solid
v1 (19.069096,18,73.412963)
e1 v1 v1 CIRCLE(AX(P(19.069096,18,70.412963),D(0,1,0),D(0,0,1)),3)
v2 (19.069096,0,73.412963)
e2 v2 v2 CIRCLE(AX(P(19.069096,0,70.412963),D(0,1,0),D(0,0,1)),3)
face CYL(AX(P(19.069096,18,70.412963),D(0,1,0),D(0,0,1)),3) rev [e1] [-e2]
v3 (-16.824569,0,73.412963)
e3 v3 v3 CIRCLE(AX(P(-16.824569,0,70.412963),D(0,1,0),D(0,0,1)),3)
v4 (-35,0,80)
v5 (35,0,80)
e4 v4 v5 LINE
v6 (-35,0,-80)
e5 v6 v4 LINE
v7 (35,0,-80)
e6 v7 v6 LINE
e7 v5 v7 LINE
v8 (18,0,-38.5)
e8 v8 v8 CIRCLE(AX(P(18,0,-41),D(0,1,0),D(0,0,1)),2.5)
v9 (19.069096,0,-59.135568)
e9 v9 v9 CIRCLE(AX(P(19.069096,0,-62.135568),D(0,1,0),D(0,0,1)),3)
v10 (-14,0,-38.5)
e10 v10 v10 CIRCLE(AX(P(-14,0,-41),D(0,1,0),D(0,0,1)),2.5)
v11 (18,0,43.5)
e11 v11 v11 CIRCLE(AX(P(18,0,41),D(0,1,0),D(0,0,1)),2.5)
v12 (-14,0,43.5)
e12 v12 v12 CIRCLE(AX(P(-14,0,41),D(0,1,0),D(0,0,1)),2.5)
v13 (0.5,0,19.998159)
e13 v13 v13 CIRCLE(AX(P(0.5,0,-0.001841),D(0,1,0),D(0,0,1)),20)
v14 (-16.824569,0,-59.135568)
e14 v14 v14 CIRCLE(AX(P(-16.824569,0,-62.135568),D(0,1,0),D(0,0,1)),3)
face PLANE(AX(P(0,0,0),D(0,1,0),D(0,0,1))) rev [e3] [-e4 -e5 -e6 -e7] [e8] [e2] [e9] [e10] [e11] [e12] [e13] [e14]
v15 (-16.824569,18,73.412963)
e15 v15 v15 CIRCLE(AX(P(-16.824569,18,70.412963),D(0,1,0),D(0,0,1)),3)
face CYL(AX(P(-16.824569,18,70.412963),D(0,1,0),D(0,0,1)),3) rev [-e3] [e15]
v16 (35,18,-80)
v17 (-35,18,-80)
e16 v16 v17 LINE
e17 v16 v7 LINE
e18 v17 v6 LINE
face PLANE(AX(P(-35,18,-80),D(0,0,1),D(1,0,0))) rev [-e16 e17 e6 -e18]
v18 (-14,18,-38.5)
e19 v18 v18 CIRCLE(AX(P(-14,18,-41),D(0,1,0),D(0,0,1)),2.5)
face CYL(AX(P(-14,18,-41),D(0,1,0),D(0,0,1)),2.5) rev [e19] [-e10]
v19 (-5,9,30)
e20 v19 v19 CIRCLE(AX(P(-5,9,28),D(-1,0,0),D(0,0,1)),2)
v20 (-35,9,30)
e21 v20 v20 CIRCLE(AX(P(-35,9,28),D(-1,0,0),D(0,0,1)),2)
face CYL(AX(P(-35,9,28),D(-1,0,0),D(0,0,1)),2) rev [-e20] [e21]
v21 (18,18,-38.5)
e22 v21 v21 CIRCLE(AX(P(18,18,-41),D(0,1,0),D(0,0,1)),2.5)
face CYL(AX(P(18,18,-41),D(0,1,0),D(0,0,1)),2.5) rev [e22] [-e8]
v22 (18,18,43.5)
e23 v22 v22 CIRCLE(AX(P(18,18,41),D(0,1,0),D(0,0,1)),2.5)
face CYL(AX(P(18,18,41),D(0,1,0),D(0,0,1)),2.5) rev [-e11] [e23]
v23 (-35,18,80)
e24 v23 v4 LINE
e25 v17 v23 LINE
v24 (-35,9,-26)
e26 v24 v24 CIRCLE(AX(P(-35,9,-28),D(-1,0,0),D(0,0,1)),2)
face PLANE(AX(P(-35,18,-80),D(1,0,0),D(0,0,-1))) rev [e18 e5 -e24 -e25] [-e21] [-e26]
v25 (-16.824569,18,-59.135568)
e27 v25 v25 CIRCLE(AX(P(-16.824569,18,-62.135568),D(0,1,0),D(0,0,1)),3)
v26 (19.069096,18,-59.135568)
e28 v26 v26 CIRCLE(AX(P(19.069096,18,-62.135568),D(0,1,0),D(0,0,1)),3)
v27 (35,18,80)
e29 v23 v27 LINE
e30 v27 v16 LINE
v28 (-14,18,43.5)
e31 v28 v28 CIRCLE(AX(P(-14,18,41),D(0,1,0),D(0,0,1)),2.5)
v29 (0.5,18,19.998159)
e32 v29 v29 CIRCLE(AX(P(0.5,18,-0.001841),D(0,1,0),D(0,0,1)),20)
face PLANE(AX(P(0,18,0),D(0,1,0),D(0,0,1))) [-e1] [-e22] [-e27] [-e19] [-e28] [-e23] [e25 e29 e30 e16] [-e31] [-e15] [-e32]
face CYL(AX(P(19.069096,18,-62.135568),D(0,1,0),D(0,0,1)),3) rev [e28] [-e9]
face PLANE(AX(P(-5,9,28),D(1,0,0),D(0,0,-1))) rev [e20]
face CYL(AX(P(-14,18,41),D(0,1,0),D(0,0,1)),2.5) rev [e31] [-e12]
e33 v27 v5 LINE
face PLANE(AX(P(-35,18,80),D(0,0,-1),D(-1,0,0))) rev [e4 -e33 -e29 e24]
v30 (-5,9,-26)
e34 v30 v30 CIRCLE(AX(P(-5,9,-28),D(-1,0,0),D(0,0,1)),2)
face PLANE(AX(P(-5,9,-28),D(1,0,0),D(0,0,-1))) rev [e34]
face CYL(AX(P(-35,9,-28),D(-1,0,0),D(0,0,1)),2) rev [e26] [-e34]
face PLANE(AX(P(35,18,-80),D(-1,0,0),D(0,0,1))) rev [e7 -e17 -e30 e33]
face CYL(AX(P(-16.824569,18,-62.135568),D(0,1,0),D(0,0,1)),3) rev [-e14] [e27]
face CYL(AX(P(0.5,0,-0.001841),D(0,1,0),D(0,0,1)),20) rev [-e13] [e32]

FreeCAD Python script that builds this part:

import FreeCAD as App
import Part
import Sketcher

V = App.Vector

doc = App.newDocument("Part")
body = doc.addObject("PartDesign::Body", "Body")

sketch1 = body.newObject("Sketcher::SketchObject", "Sketch")
sketch1.AttachmentSupport = (doc.getObject("XZ_Plane"), [""])
sketch1.MapMode = "FlatFace"
sketch1.addGeometry([
    Part.LineSegment(V(-35, -80, 0), V(-35, 80, 0)),
    Part.LineSegment(V(-35, 80, 0), V(35, 80, 0)),
    Part.LineSegment(V(35, 80, 0), V(35, -80, 0)),
    Part.LineSegment(V(35, -80, 0), V(-35, -80, 0)),
], False)
sketch1.addConstraint([
    Sketcher.Constraint("Coincident", 0, 2, 1, 1),
    Sketcher.Constraint("Coincident", 1, 2, 2, 1),
    Sketcher.Constraint("Coincident", 2, 2, 3, 1),
    Sketcher.Constraint("Coincident", 3, 2, 0, 1),
    Sketcher.Constraint("Vertical", 0),
    Sketcher.Constraint("Horizontal", 1),
    Sketcher.Constraint("Vertical", 2),
    Sketcher.Constraint("Horizontal", 3),
    Sketcher.Constraint("Symmetric", 0, 2, 2, 2, -1, 1),
    Sketcher.Constraint("DistanceX", 1, 1, 1, 2, 70.0),
    Sketcher.Constraint("DistanceY", 0, 1, 0, 2, 160.0),
])
pad1 = body.newObject("PartDesign::Pad", "Pad")
pad1.Profile = sketch1
pad1.Length = 18
pad1.Reversed = True

sketch2 = body.newObject("Sketcher::SketchObject", "Sketch001")
sketch2.AttachmentSupport = (doc.getObject("XZ_Plane"), [""])
sketch2.MapMode = "FlatFace"
sketch2.AttachmentOffset = App.Placement(V(0, 0, -18), App.Rotation())
sketch2.addGeometry(Part.Circle(V(1, 0, 0), V(0, 0, 1), 20), False)
sketch2.addConstraint([
    Sketcher.Constraint("Diameter", 0, 40.0),
    Sketcher.Constraint("DistanceX", -1, 1, 0, 3, 0.5),
    Sketcher.Constraint("DistanceY", 0, 3, -1, 1, 0.001841),
])
pocket1 = body.newObject("PartDesign::Pocket", "Pocket")
pocket1.Profile = sketch2
pocket1.Type = "ThroughAll"
pocket1.Reversed = True

sketch3 = body.newObject("Sketcher::SketchObject", "Sketch002")
sketch3.AttachmentSupport = (doc.getObject("XZ_Plane"), [""])
sketch3.MapMode = "FlatFace"
sketch3.AttachmentOffset = App.Placement(V(0, 0, -18), App.Rotation())
sketch3.addGeometry([
    Part.Circle(V(19.1, -62.1, 0), V(0, 0, 1), 3),
    Part.Circle(V(-16.8, -62.1, 0), V(0, 0, 1), 3),
    Part.Circle(V(19.1, 70.4, 0), V(0, 0, 1), 3),
    Part.Circle(V(-16.8, 70.4, 0), V(0, 0, 1), 3),
], False)
sketch3.addConstraint([
    Sketcher.Constraint("Equal", 0, 1),
    Sketcher.Constraint("Equal", 1, 2),
    Sketcher.Constraint("Equal", 2, 3),
    Sketcher.Constraint("Horizontal", 0, 3, 1, 3),
    Sketcher.Constraint("Horizontal", 2, 3, 3, 3),
    Sketcher.Constraint("Vertical", 0, 3, 2, 3),
    Sketcher.Constraint("Vertical", 1, 3, 3, 3),
    Sketcher.Constraint("Diameter", 0, 6.0),
    Sketcher.Constraint("DistanceX", 1, 3, -1, 1, 16.824569),
    Sketcher.Constraint("DistanceY", 0, 3, 2, 3, 132.548531),
    Sketcher.Constraint("DistanceX", -1, 1, 0, 3, 19.069096),
    Sketcher.Constraint("DistanceY", 0, 3, -1, 1, 62.135568),
])
doc.recompute()
hole = body.newObject("PartDesign::Hole", "Hole")
hole.Profile = sketch3
hole.ThreadType = "None"
hole.Diameter = 6
hole.DepthType = "ThroughAll"
hole.Reversed = True

sketch4 = body.newObject("Sketcher::SketchObject", "Sketch003")
sketch4.AttachmentSupport = (doc.getObject("YZ_Plane"), [""])
sketch4.MapMode = "FlatFace"
sketch4.AttachmentOffset = App.Placement(V(0, 0, -35), App.Rotation())
sketch4.addGeometry([
    Part.Circle(V(9, 28, 0), V(0, 0, 1), 2),
    Part.Circle(V(9, -28, 0), V(0, 0, 1), 2),
], False)
sketch4.addConstraint([
    Sketcher.Constraint("Equal", 0, 1),
    Sketcher.Constraint("Symmetric", 0, 3, 1, 3, -1),
    Sketcher.Constraint("Diameter", 0, 4.0),
    Sketcher.Constraint("DistanceX", -1, 1, 0, 3, 9.0),
    Sketcher.Constraint("DistanceY", -1, 1, 0, 3, 28.0),
])
doc.recompute()
hole2 = body.newObject("PartDesign::Hole", "Hole001")
hole2.Profile = sketch4
hole2.ThreadType = "None"
hole2.Diameter = 4
hole2.DepthType = "Dimension"
hole2.Depth = 30
hole2.DrillPoint = "Flat"
hole2.Reversed = True

sketch5 = body.newObject("Sketcher::SketchObject", "Sketch004")
sketch5.AttachmentSupport = (doc.getObject("XZ_Plane"), [""])
sketch5.MapMode = "FlatFace"
sketch5.AttachmentOffset = App.Placement(V(0, 0, -18), App.Rotation())
sketch5.addGeometry([
    Part.Circle(V(18, -41, 0), V(0, 0, 1), 2.5),
    Part.Circle(V(-14, -41, 0), V(0, 0, 1), 2.5),
    Part.Circle(V(18, 41, 0), V(0, 0, 1), 2.5),
    Part.Circle(V(-14, 41, 0), V(0, 0, 1), 2.5),
], False)
sketch5.addConstraint([
    Sketcher.Constraint("Equal", 0, 1),
    Sketcher.Constraint("Equal", 1, 2),
    Sketcher.Constraint("Equal", 2, 3),
    Sketcher.Constraint("Symmetric", 0, 3, 2, 3, -1),
    Sketcher.Constraint("Symmetric", 1, 3, 3, 3, -1),
    Sketcher.Constraint("Horizontal", 0, 3, 1, 3),
    Sketcher.Constraint("Diameter", 0, 5.0),
    Sketcher.Constraint("DistanceX", -1, 1, 0, 3, 18.0),
    Sketcher.Constraint("DistanceY", 0, 3, -1, 1, 41.0),
    Sketcher.Constraint("DistanceX", 1, 3, -1, 1, 14.0),
])
doc.recompute()
hole3 = body.newObject("PartDesign::Hole", "Hole002")
hole3.Profile = sketch5
hole3.ThreadType = "None"
hole3.Diameter = 5
hole3.DepthType = "ThroughAll"
hole3.Reversed = True

doc.recompute()
